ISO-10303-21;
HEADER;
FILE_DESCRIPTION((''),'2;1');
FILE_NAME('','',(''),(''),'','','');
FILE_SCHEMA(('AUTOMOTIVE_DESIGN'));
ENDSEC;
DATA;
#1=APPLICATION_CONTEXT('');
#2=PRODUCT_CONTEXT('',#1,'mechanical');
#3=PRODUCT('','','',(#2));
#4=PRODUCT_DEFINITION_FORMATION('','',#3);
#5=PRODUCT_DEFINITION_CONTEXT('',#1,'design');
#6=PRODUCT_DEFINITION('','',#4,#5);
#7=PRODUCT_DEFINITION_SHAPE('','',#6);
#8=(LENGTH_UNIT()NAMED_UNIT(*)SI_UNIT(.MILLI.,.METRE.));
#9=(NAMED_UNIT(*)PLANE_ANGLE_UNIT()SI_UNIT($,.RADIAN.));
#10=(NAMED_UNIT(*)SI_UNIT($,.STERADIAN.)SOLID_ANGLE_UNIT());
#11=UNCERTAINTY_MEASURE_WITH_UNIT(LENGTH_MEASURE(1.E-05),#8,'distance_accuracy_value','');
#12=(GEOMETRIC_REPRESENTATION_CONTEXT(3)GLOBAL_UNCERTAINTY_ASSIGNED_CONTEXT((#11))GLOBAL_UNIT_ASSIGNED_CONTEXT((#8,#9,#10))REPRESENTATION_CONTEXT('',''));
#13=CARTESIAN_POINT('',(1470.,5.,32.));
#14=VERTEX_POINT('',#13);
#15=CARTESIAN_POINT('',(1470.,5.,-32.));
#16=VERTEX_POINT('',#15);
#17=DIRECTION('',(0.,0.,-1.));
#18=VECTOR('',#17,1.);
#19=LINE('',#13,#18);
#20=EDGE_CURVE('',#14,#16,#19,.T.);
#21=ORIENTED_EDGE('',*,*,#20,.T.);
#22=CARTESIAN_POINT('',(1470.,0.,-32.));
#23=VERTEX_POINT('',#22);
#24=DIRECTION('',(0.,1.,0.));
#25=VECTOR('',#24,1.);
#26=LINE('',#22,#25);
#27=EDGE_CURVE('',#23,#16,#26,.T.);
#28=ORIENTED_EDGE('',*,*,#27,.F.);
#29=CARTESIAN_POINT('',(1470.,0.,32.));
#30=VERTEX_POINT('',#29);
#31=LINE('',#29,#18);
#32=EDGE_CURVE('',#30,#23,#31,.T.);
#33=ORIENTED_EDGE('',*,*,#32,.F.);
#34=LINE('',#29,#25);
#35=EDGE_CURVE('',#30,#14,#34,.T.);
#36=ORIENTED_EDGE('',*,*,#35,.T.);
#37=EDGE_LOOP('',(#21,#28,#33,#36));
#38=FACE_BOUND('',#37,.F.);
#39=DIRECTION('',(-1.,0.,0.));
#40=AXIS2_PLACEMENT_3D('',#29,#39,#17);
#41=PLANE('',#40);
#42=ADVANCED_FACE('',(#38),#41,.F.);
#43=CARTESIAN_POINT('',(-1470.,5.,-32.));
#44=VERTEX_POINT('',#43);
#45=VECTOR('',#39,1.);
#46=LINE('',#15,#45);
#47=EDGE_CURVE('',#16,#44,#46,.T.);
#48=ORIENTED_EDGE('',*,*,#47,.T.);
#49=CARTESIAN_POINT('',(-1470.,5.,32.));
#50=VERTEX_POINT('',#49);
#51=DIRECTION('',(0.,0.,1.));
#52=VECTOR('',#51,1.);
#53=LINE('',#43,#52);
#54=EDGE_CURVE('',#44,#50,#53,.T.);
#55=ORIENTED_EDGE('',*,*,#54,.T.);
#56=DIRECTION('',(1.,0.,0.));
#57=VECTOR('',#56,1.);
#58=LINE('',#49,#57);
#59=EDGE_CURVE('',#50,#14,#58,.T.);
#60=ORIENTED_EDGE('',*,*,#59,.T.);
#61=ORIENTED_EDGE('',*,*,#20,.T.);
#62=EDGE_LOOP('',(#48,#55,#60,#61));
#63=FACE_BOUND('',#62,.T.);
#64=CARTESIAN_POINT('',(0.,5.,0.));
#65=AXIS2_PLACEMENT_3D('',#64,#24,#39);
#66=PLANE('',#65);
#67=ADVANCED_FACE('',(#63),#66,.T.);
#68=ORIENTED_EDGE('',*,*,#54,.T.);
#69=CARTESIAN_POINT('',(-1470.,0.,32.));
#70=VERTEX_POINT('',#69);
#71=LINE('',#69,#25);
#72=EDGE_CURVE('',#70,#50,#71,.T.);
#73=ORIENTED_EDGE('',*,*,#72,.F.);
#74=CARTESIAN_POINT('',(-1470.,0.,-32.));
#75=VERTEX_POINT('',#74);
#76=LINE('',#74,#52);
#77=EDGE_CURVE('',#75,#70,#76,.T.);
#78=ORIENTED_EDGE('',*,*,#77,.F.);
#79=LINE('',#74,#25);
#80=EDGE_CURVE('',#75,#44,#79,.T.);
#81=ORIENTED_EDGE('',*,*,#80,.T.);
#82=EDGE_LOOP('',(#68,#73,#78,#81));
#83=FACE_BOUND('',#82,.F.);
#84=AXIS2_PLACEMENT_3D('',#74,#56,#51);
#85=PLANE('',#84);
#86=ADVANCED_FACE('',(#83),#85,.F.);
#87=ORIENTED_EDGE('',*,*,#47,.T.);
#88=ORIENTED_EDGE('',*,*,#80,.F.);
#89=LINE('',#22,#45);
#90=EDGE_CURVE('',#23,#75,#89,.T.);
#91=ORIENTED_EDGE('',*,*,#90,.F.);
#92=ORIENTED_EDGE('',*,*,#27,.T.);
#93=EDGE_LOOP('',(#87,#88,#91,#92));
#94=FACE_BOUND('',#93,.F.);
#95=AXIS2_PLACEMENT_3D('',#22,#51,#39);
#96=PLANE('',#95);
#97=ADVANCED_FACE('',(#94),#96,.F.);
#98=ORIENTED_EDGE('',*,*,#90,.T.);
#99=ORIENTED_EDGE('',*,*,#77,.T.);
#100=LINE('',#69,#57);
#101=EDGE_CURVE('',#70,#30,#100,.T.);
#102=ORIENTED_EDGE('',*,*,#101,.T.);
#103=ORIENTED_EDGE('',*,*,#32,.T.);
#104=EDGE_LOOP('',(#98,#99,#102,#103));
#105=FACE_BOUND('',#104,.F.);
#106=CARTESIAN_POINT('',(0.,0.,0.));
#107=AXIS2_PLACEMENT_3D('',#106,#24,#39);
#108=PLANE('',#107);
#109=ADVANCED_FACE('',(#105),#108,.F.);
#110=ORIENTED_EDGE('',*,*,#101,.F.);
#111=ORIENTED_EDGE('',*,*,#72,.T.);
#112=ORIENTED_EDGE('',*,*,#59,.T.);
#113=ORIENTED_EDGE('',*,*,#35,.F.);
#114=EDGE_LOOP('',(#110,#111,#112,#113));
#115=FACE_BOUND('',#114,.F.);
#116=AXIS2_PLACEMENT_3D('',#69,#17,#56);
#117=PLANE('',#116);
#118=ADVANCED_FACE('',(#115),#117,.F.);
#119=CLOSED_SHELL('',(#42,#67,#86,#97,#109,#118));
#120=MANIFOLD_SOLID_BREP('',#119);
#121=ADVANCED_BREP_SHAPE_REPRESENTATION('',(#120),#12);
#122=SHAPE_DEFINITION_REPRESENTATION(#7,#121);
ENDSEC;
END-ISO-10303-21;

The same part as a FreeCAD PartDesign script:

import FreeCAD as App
import Part
import Sketcher

V = App.Vector
Q = App.Units.Quantity


def add_polygon(sketch, points):
    """Adds a closed chain of lines whose ends are joined by coincident constraints."""
    first, n = sketch.GeometryCount, len(points)
    for a, b in zip(points, points[1:] + points[:1]):
        sketch.addGeometry(Part.LineSegment(App.Vector(*a, 0), App.Vector(*b, 0)), False)
    for i in range(n):
        sketch.addConstraint(Sketcher.Constraint("Coincident", first + i, 2, first + (i + 1) % n, 1))

doc = App.newDocument("Part")
body = doc.addObject("PartDesign::Body", "Body")

# Sketch on XZ plane
sketch1 = doc.addObject("Sketcher::SketchObject", "Sketch")
body.addObject(sketch1)
sketch1.AttachmentSupport = (doc.XZ_Plane, [""])
sketch1.MapMode = "FlatFace"
add_polygon(sketch1, [(-1470, -32), (-1470, 32), (1470, 32), (1470, -32)])  # lines 0-3
sketch1.addConstraint(Sketcher.Constraint("Vertical", 0))
sketch1.addConstraint(Sketcher.Constraint("Horizontal", 1))
sketch1.addConstraint(Sketcher.Constraint("Vertical", 2))
sketch1.addConstraint(Sketcher.Constraint("Horizontal", 3))
sketch1.addConstraint(Sketcher.Constraint("Symmetric", 0, 2, 2, 2, -1, 1))
sketch1.addConstraint(Sketcher.Constraint("DistanceX", 1, 1, 1, 2, Q("2940 mm")))
sketch1.addConstraint(Sketcher.Constraint("DistanceY", 0, 1, 0, 2, Q("64 mm")))
pad1 = doc.addObject("PartDesign::Pad", "Pad")
body.addObject(pad1)
pad1.Profile = sketch1
pad1.Length = 5
pad1.Reversed = True

doc.recompute()
